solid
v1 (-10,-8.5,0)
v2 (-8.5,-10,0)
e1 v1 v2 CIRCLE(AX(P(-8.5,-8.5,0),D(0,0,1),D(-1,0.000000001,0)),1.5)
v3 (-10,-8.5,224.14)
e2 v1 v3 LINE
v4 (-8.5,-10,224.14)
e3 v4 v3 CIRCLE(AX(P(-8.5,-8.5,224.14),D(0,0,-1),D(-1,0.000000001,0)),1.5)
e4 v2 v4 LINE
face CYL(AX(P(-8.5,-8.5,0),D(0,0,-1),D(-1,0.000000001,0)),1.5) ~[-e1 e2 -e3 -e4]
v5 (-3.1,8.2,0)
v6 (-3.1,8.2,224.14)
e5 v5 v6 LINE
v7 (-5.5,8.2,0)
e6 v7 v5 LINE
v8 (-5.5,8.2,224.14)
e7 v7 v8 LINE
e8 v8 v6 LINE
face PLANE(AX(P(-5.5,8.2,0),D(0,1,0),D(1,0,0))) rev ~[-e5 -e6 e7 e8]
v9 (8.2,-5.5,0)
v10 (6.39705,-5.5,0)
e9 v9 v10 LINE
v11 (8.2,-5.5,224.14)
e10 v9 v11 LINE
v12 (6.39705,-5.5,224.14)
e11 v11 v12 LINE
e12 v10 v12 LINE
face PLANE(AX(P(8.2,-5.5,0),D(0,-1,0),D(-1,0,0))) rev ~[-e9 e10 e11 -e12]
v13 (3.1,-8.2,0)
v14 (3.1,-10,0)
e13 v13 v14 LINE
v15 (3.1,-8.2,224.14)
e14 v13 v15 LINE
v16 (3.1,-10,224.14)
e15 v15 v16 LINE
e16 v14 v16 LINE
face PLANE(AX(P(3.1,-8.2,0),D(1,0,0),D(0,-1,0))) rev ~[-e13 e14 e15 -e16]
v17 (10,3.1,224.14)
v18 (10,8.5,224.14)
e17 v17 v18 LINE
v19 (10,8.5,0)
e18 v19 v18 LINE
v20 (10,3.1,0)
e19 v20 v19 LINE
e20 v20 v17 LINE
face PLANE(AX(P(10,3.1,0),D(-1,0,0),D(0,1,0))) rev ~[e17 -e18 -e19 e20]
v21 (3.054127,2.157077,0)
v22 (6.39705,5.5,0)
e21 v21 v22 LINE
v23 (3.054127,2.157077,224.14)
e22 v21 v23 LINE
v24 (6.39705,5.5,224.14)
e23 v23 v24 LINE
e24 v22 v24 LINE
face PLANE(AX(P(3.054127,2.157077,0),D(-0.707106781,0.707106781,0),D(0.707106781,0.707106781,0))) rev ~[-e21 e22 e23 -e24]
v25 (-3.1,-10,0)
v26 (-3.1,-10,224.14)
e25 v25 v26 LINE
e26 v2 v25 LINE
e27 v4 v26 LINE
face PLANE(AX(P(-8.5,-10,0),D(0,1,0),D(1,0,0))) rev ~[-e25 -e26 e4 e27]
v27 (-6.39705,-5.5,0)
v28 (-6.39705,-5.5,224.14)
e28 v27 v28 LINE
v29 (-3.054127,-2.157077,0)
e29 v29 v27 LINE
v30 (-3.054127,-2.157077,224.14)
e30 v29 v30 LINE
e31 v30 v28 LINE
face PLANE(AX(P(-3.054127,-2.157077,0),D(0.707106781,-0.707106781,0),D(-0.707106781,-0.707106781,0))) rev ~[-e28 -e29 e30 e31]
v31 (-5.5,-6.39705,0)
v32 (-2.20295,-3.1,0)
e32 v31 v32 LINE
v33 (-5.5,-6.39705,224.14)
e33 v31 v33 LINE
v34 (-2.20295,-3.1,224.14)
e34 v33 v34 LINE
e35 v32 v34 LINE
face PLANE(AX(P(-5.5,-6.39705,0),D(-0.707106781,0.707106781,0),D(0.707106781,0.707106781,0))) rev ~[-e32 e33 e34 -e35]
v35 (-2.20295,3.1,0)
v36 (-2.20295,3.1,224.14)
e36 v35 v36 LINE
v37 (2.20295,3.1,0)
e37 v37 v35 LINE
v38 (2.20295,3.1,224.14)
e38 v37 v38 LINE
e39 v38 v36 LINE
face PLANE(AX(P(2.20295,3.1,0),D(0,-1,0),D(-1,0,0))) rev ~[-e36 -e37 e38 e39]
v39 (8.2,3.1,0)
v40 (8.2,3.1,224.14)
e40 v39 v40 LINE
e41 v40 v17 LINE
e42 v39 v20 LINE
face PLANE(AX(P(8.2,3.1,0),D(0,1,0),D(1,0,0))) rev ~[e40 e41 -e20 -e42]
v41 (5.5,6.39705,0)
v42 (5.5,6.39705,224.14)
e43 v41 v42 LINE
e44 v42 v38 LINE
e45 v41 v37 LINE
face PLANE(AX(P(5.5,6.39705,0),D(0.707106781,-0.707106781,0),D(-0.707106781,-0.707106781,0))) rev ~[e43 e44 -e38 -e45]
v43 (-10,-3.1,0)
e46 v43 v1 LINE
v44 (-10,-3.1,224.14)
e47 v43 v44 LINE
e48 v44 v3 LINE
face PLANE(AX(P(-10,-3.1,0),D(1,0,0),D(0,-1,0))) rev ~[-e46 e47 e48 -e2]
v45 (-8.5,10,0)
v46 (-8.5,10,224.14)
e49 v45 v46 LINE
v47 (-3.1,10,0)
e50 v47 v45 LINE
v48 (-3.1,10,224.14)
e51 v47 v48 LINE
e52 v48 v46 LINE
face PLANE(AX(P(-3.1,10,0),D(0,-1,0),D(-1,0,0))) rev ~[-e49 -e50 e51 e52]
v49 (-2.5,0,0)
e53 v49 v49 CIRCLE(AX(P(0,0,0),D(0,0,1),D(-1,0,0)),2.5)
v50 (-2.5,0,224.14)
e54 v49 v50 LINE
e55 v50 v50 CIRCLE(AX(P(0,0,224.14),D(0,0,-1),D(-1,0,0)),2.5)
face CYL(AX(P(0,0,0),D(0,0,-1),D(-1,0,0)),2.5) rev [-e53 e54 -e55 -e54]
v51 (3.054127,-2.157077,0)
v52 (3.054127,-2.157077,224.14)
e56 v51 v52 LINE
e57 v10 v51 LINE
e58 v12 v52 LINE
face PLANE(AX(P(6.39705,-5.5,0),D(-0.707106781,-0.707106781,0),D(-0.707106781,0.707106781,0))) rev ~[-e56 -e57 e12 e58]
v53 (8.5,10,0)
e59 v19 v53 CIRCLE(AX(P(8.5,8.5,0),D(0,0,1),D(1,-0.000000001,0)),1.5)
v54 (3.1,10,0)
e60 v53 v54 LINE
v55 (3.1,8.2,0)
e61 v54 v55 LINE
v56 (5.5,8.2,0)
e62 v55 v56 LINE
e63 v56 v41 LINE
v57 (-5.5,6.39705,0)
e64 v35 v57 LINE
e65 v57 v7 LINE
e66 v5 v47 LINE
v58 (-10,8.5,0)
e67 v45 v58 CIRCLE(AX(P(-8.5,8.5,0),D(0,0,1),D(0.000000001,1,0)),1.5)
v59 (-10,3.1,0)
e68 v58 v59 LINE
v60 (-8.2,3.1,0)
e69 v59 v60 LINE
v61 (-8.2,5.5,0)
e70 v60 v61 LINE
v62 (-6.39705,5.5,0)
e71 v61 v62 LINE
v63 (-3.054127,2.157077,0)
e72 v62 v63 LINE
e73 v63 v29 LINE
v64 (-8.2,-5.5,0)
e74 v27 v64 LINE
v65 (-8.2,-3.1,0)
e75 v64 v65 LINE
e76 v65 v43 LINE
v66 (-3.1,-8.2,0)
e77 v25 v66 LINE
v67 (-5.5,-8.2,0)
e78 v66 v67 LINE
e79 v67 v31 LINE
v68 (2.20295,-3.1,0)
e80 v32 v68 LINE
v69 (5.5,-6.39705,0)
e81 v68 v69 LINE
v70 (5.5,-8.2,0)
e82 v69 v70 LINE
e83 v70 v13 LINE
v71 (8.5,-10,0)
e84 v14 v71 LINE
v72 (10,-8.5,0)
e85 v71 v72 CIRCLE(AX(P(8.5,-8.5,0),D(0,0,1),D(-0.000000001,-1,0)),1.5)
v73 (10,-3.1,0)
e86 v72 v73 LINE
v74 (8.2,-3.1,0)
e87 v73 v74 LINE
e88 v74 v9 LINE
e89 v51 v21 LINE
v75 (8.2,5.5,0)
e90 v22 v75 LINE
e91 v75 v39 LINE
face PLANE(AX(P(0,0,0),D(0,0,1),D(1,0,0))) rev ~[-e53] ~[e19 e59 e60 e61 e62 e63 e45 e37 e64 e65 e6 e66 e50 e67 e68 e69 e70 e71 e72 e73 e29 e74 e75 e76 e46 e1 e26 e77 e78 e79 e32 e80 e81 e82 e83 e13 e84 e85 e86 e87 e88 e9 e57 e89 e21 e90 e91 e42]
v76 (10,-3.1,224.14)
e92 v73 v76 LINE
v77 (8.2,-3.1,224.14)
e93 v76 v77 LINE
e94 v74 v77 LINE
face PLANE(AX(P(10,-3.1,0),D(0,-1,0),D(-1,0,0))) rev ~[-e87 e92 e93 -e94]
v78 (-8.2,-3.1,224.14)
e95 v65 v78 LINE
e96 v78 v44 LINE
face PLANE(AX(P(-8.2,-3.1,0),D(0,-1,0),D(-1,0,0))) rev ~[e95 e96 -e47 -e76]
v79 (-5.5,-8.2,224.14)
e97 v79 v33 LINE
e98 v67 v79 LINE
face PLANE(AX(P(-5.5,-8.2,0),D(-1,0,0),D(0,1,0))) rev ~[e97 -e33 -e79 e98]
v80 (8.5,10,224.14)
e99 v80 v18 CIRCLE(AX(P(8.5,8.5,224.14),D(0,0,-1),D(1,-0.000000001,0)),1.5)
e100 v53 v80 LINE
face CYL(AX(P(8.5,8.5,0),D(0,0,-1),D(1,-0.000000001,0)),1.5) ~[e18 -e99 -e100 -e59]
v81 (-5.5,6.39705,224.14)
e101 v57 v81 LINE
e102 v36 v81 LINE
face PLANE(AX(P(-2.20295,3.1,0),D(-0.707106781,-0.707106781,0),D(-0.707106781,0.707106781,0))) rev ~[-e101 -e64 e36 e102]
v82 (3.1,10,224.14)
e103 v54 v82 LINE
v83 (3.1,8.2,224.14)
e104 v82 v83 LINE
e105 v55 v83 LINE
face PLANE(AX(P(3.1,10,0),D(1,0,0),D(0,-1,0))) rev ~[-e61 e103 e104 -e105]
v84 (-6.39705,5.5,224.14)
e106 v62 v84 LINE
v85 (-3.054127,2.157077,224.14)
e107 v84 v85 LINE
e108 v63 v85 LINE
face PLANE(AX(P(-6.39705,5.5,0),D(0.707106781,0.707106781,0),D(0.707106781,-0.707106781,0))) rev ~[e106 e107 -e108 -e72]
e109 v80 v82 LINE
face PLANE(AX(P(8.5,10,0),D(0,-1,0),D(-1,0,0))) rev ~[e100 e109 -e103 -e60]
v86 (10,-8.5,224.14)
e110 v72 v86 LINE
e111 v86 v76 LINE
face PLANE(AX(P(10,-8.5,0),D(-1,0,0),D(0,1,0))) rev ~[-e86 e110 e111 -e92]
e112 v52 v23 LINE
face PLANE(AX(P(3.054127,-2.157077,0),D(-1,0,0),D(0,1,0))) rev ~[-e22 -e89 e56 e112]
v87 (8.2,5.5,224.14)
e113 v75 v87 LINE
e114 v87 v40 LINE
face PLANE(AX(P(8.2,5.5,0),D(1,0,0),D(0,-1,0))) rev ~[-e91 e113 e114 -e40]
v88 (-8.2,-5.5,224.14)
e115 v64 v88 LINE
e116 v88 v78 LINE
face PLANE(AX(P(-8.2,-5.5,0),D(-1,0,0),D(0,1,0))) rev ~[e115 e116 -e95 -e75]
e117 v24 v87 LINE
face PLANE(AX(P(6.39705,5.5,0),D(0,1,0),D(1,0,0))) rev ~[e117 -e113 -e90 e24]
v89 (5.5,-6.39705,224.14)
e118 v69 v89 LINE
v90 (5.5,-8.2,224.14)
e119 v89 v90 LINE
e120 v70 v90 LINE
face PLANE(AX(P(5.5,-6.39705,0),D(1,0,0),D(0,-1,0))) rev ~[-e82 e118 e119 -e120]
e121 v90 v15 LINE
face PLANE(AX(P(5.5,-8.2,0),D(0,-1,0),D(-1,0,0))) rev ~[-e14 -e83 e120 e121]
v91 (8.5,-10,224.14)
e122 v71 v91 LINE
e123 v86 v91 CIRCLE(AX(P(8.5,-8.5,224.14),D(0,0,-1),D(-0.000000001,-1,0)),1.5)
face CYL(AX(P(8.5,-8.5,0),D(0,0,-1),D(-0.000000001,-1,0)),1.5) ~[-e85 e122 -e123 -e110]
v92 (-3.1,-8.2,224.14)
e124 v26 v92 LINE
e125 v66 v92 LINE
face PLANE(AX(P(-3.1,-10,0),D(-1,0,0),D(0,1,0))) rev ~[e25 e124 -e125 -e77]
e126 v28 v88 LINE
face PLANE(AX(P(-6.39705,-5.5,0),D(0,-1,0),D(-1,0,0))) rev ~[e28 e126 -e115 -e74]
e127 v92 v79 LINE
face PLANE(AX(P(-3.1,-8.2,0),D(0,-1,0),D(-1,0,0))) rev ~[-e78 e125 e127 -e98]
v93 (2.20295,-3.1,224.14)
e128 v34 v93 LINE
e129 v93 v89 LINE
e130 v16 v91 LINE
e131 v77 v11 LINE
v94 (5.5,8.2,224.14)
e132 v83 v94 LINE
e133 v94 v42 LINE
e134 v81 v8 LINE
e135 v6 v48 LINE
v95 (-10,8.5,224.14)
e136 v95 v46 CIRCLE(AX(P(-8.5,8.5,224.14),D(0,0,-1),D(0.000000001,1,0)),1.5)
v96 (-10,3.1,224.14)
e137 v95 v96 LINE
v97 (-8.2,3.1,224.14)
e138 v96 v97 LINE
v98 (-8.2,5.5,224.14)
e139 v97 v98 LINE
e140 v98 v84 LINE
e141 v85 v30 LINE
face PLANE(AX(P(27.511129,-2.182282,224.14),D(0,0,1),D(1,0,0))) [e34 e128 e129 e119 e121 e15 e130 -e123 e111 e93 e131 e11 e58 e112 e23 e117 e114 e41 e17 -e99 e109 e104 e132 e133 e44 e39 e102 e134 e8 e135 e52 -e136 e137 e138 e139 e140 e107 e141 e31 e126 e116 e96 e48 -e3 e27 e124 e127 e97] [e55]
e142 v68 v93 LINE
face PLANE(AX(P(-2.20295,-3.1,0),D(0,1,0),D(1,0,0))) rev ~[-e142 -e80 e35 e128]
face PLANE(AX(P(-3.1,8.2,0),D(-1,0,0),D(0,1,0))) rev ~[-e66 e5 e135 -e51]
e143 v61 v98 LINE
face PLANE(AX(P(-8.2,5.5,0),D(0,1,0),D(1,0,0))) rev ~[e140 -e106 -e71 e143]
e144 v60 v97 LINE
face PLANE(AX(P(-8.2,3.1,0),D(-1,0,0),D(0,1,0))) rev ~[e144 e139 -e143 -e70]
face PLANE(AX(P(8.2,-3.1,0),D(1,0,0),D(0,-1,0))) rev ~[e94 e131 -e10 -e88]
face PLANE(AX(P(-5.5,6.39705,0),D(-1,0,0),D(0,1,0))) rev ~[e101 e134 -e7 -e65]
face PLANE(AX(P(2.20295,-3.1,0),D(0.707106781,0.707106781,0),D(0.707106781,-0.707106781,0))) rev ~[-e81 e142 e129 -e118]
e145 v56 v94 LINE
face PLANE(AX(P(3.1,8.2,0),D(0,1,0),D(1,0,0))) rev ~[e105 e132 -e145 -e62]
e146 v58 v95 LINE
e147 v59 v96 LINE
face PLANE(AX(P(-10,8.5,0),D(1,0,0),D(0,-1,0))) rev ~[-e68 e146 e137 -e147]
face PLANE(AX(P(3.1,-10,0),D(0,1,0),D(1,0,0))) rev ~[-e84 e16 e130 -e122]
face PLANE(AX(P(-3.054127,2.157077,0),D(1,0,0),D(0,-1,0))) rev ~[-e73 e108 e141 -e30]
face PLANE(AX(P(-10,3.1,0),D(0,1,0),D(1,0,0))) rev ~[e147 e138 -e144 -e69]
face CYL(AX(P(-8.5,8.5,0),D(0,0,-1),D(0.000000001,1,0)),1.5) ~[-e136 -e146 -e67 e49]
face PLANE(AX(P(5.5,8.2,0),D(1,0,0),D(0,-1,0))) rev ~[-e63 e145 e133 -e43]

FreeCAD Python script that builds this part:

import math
import FreeCAD as App
import Part
import Sketcher
Q = App.Units.Quantity


def add_polygon(sketch, points):
    """Adds a closed chain of lines whose ends are joined by coincident constraints."""
    first, n = sketch.GeometryCount, len(points)
    for a, b in zip(points, points[1:] + points[:1]):
        sketch.addGeometry(Part.LineSegment(App.Vector(*a, 0), App.Vector(*b, 0)), False)
    for i in range(n):
        sketch.addConstraint(Sketcher.Constraint("Coincident", first + i, 2, first + (i + 1) % n, 1))

doc = App.newDocument("Part")
body = doc.addObject("PartDesign::Body", "Body")

# Sketch on XY plane
sketch1 = body.newObject("Sketcher::SketchObject", "Sketch")
sketch1.AttachmentSupport = (doc.getObject("XY_Plane"), [""])
sketch1.MapMode = "FlatFace"
sketch1.addGeometry([
    Part.LineSegment(App.Vector(-8.2, -3.1, 0), App.Vector(-10, -3.1, 0)),  # 0
    Part.LineSegment(App.Vector(-10, -3.1, 0), App.Vector(-10, -8.5, 0)),  # 1
    Part.ArcOfCircle(Part.Circle(App.Vector(-8.5, -8.5, 0), App.Vector(0, 0, 1), 1.5), math.radians(180), math.radians(270)),  # 2
    Part.LineSegment(App.Vector(-8.5, -10, 0), App.Vector(-3.1, -10, 0)),  # 3
    Part.LineSegment(App.Vector(-3.1, -10, 0), App.Vector(-3.1, -8.2, 0)),  # 4
    Part.LineSegment(App.Vector(-3.1, -8.2, 0), App.Vector(-5.5, -8.2, 0)),  # 5
    Part.LineSegment(App.Vector(-5.5, -8.2, 0), App.Vector(-5.5, -6.39705, 0)),  # 6
    Part.LineSegment(App.Vector(-5.5, -6.39705, 0), App.Vector(-2.20295, -3.1, 0)),  # 7
    Part.LineSegment(App.Vector(-2.20295, -3.1, 0), App.Vector(2.20295, -3.1, 0)),  # 8
    Part.LineSegment(App.Vector(2.20295, -3.1, 0), App.Vector(5.5, -6.39705, 0)),  # 9
    Part.LineSegment(App.Vector(5.5, -6.39705, 0), App.Vector(5.5, -8.2, 0)),  # 10
    Part.LineSegment(App.Vector(5.5, -8.2, 0), App.Vector(3.1, -8.2, 0)),  # 11
    Part.LineSegment(App.Vector(3.1, -8.2, 0), App.Vector(3.1, -10, 0)),  # 12
    Part.LineSegment(App.Vector(3.1, -10, 0), App.Vector(8.5, -10, 0)),  # 13
    Part.ArcOfCircle(Part.Circle(App.Vector(8.5, -8.5, 0), App.Vector(0, 0, 1), 1.5), math.radians(-90), math.radians(0)),  # 14
    Part.LineSegment(App.Vector(10, -8.5, 0), App.Vector(10, -3.1, 0)),  # 15
    Part.LineSegment(App.Vector(10, -3.1, 0), App.Vector(8.2, -3.1, 0)),  # 16
    Part.LineSegment(App.Vector(8.2, -3.1, 0), App.Vector(8.2, -5.5, 0)),  # 17
    Part.LineSegment(App.Vector(8.2, -5.5, 0), App.Vector(6.39705, -5.5, 0)),  # 18
    Part.LineSegment(App.Vector(6.39705, -5.5, 0), App.Vector(3.054127, -2.157077, 0)),  # 19
    Part.LineSegment(App.Vector(3.054127, -2.157077, 0), App.Vector(3.054127, 2.157077, 0)),  # 20
    Part.LineSegment(App.Vector(3.054127, 2.157077, 0), App.Vector(6.39705, 5.5, 0)),  # 21
    Part.LineSegment(App.Vector(6.39705, 5.5, 0), App.Vector(8.2, 5.5, 0)),  # 22
    Part.LineSegment(App.Vector(8.2, 5.5, 0), App.Vector(8.2, 3.1, 0)),  # 23
    Part.LineSegment(App.Vector(8.2, 3.1, 0), App.Vector(10, 3.1, 0)),  # 24
    Part.LineSegment(App.Vector(10, 3.1, 0), App.Vector(10, 8.5, 0)),  # 25
    Part.ArcOfCircle(Part.Circle(App.Vector(8.5, 8.5, 0), App.Vector(0, 0, 1), 1.5), math.radians(0), math.radians(90)),  # 26
    Part.LineSegment(App.Vector(8.5, 10, 0), App.Vector(3.1, 10, 0)),  # 27
    Part.LineSegment(App.Vector(3.1, 10, 0), App.Vector(3.1, 8.2, 0)),  # 28
    Part.LineSegment(App.Vector(3.1, 8.2, 0), App.Vector(5.5, 8.2, 0)),  # 29
    Part.LineSegment(App.Vector(5.5, 8.2, 0), App.Vector(5.5, 6.39705, 0)),  # 30
    Part.LineSegment(App.Vector(5.5, 6.39705, 0), App.Vector(2.20295, 3.1, 0)),  # 31
    Part.LineSegment(App.Vector(2.20295, 3.1, 0), App.Vector(-2.20295, 3.1, 0)),  # 32
    Part.LineSegment(App.Vector(-2.20295, 3.1, 0), App.Vector(-5.5, 6.39705, 0)),  # 33
    Part.LineSegment(App.Vector(-5.5, 6.39705, 0), App.Vector(-5.5, 8.2, 0)),  # 34
    Part.LineSegment(App.Vector(-5.5, 8.2, 0), App.Vector(-3.1, 8.2, 0)),  # 35
    Part.LineSegment(App.Vector(-3.1, 8.2, 0), App.Vector(-3.1, 10, 0)),  # 36
    Part.LineSegment(App.Vector(-3.1, 10, 0), App.Vector(-8.5, 10, 0)),  # 37
    Part.ArcOfCircle(Part.Circle(App.Vector(-8.5, 8.5, 0), App.Vector(0, 0, 1), 1.5), math.radians(90), math.radians(180)),  # 38
    Part.LineSegment(App.Vector(-10, 8.5, 0), App.Vector(-10, 3.1, 0)),  # 39
    Part.LineSegment(App.Vector(-10, 3.1, 0), App.Vector(-8.2, 3.1, 0)),  # 40
    Part.LineSegment(App.Vector(-8.2, 3.1, 0), App.Vector(-8.2, 5.5, 0)),  # 41
    Part.LineSegment(App.Vector(-8.2, 5.5, 0), App.Vector(-6.39705, 5.5, 0)),  # 42
    Part.LineSegment(App.Vector(-6.39705, 5.5, 0), App.Vector(-3.054127, 2.157077, 0)),  # 43
    Part.LineSegment(App.Vector(-3.054127, 2.157077, 0), App.Vector(-3.054127, -2.157077, 0)),  # 44
    Part.LineSegment(App.Vector(-3.054127, -2.157077, 0), App.Vector(-6.39705, -5.5, 0)),  # 45
    Part.LineSegment(App.Vector(-6.39705, -5.5, 0), App.Vector(-8.2, -5.5, 0)),  # 46
    Part.LineSegment(App.Vector(-8.2, -5.5, 0), App.Vector(-8.2, -3.1, 0)),  # 47
    Part.Circle(App.Vector(0, 0, 0), App.Vector(0, 0, 1), 2.5),  # 48
], False)
sketch1.addConstraint([
    Sketcher.Constraint("Coincident", 0, 2, 1, 1),
    Sketcher.Constraint("Tangent", 1, 2, 2, 1),
    Sketcher.Constraint("Tangent", 2, 2, 3, 1),
    Sketcher.Constraint("Coincident", 3, 2, 4, 1),
    Sketcher.Constraint("Coincident", 4, 2, 5, 1),
    Sketcher.Constraint("Coincident", 5, 2, 6, 1),
    Sketcher.Constraint("Coincident", 6, 2, 7, 1),
    Sketcher.Constraint("Coincident", 7, 2, 8, 1),
    Sketcher.Constraint("Coincident", 8, 2, 9, 1),
    Sketcher.Constraint("Coincident", 9, 2, 10, 1),
    Sketcher.Constraint("Coincident", 10, 2, 11, 1),
    Sketcher.Constraint("Coincident", 11, 2, 12, 1),
    Sketcher.Constraint("Coincident", 12, 2, 13, 1),
    Sketcher.Constraint("Tangent", 13, 2, 14, 1),
    Sketcher.Constraint("Tangent", 14, 2, 15, 1),
    Sketcher.Constraint("Coincident", 15, 2, 16, 1),
    Sketcher.Constraint("Coincident", 16, 2, 17, 1),
    Sketcher.Constraint("Coincident", 17, 2, 18, 1),
    Sketcher.Constraint("Coincident", 18, 2, 19, 1),
    Sketcher.Constraint("Coincident", 19, 2, 20, 1),
    Sketcher.Constraint("Coincident", 20, 2, 21, 1),
    Sketcher.Constraint("Coincident", 21, 2, 22, 1),
    Sketcher.Constraint("Coincident", 22, 2, 23, 1),
    Sketcher.Constraint("Coincident", 23, 2, 24, 1),
    Sketcher.Constraint("Coincident", 24, 2, 25, 1),
    Sketcher.Constraint("Tangent", 25, 2, 26, 1),
    Sketcher.Constraint("Tangent", 26, 2, 27, 1),
    Sketcher.Constraint("Coincident", 27, 2, 28, 1),
    Sketcher.Constraint("Coincident", 28, 2, 29, 1),
    Sketcher.Constraint("Coincident", 29, 2, 30, 1),
    Sketcher.Constraint("Coincident", 30, 2, 31, 1),
    Sketcher.Constraint("Coincident", 31, 2, 32, 1),
    Sketcher.Constraint("Coincident", 32, 2, 33, 1),
    Sketcher.Constraint("Coincident", 33, 2, 34, 1),
    Sketcher.Constraint("Coincident", 34, 2, 35, 1),
    Sketcher.Constraint("Coincident", 35, 2, 36, 1),
    Sketcher.Constraint("Coincident", 36, 2, 37, 1),
    Sketcher.Constraint("Tangent", 37, 2, 38, 1),
    Sketcher.Constraint("Tangent", 38, 2, 39, 1),
    Sketcher.Constraint("Coincident", 39, 2, 40, 1),
    Sketcher.Constraint("Coincident", 40, 2, 41, 1),
    Sketcher.Constraint("Coincident", 41, 2, 42, 1),
    Sketcher.Constraint("Coincident", 42, 2, 43, 1),
    Sketcher.Constraint("Coincident", 43, 2, 44, 1),
    Sketcher.Constraint("Coincident", 44, 2, 45, 1),
    Sketcher.Constraint("Coincident", 45, 2, 46, 1),
    Sketcher.Constraint("Coincident", 46, 2, 47, 1),
    Sketcher.Constraint("Coincident", 47, 2, 0, 1),
    Sketcher.Constraint("Horizontal", 0),
    Sketcher.Constraint("Vertical", 1),
    Sketcher.Constraint("Horizontal", 3),
    Sketcher.Constraint("Vertical", 4),
    Sketcher.Constraint("Horizontal", 5),
    Sketcher.Constraint("Vertical", 6),
    Sketcher.Constraint("Horizontal", 8),
    Sketcher.Constraint("Vertical", 10),
    Sketcher.Constraint("Horizontal", 11),
    Sketcher.Constraint("Vertical", 12),
    Sketcher.Constraint("Horizontal", 13),
    Sketcher.Constraint("Vertical", 15),
    Sketcher.Constraint("Horizontal", 16),
    Sketcher.Constraint("Vertical", 17),
    Sketcher.Constraint("Horizontal", 18),
    Sketcher.Constraint("Vertical", 20),
    Sketcher.Constraint("Horizontal", 22),
    Sketcher.Constraint("Vertical", 23),
    Sketcher.Constraint("Horizontal", 24),
    Sketcher.Constraint("Vertical", 25),
    Sketcher.Constraint("Horizontal", 27),
    Sketcher.Constraint("Vertical", 28),
    Sketcher.Constraint("Horizontal", 29),
    Sketcher.Constraint("Vertical", 30),
    Sketcher.Constraint("Horizontal", 32),
    Sketcher.Constraint("Vertical", 34),
    Sketcher.Constraint("Horizontal", 35),
    Sketcher.Constraint("Vertical", 36),
    Sketcher.Constraint("Horizontal", 37),
    Sketcher.Constraint("Vertical", 39),
    Sketcher.Constraint("Horizontal", 40),
    Sketcher.Constraint("Vertical", 41),
    Sketcher.Constraint("Horizontal", 42),
    Sketcher.Constraint("Vertical", 44),
    Sketcher.Constraint("Horizontal", 46),
    Sketcher.Constraint("Vertical", 47),
    Sketcher.Constraint("Coincident", 48, 3, -1, 1),
    Sketcher.Constraint("Equal", 2, 14),
    Sketcher.Constraint("Equal", 14, 26),
    Sketcher.Constraint("Equal", 26, 38),
    Sketcher.Constraint("Symmetric", 2, 3, 26, 3, -1, 1),
    Sketcher.Constraint("Symmetric", 14, 3, 38, 3, -1, 1),
    Sketcher.Constraint("Symmetric", 4, 2, 28, 2, -1, 1),
    Sketcher.Constraint("Symmetric", 6, 2, 30, 2, -1, 1),
    Sketcher.Constraint("Symmetric", 7, 2, 31, 2, -1, 1),
    Sketcher.Constraint("Symmetric", 9, 2, 33, 2, -1, 1),
    Sketcher.Constraint("Symmetric", 11, 2, 35, 2, -1, 1),
    Sketcher.Constraint("Symmetric", 16, 2, 40, 2, -1, 1),
    Sketcher.Constraint("Symmetric", 18, 2, 42, 2, -1, 1),
    Sketcher.Constraint("Symmetric", 19, 2, 43, 2, -1, 1),
    Sketcher.Constraint("Symmetric", 21, 2, 45, 2, -1, 1),
    Sketcher.Constraint("Symmetric", 23, 2, 47, 2, -1, 1),
    Sketcher.Constraint("Symmetric", 2, 3, 14, 3, -2),
    Sketcher.Constraint("Symmetric", 6, 2, 9, 2, -2),
    Sketcher.Constraint("Symmetric", 4, 2, 11, 2, -2),
    Sketcher.Constraint("Symmetric", 23, 2, 40, 2, -2),
    Sketcher.Constraint("Symmetric", 21, 2, 42, 2, -2),
    Sketcher.Constraint("Perpendicular", 7, 9),
    Sketcher.Constraint("Parallel", 9, 19),
    Sketcher.Constraint("Perpendicular", 19, 21),
    Sketcher.Constraint("Perpendicular", 31, 33),
    Sketcher.Constraint("Perpendicular", 43, 45),
    Sketcher.Constraint("Horizontal", 0, 2, 7, 2),
    Sketcher.Constraint("Horizontal", 20, 2, 43, 2),
    Sketcher.Constraint("Equal", 37, 1),
    Sketcher.Constraint("Equal", 40, 4),
    Sketcher.Constraint("Equal", 46, 6),
    Sketcher.Constraint("Equal", 35, 17),
    Sketcher.Constraint("Diameter", 48, Q("5 mm")),
    Sketcher.Constraint("Radius", 2, Q("1.5 mm")),
    Sketcher.Constraint("DistanceX", 0, 2, 0, 1, Q("1.8 mm")),
    Sketcher.Constraint("DistanceX", 3, 1, 3, 2, Q("5.4 mm")),
    Sketcher.Constraint("DistanceX", 5, 2, 5, 1, Q("2.4 mm")),
    Sketcher.Constraint("DistanceX", 0, 2, -1, 1, Q("10 mm")),
    Sketcher.Constraint("DistanceY", 2, 2, -1, 1, Q("10 mm")),
    Sketcher.Constraint("DistanceX", 8, 1, 8, 2, Q("4.4059 mm")),
    Sketcher.Constraint("DistanceY", 20, 1, 20, 2, Q("4.314154 mm")),
])
pad1 = body.newObject("PartDesign::Pad", "Pad")
pad1.Profile = sketch1
pad1.Length = 950

# Sketch on XY plane
sketch2 = body.newObject("Sketcher::SketchObject", "Sketch001")
sketch2.AttachmentSupport = (doc.getObject("XY_Plane"), [""])
sketch2.MapMode = "FlatFace"
sketch2.AttachmentOffset = App.Placement(App.Vector(0, 0, 950), App.Rotation())
add_polygon(sketch2, [(-27.463005, 12.539693), (-27.463005, -16.904257), (82.485263, -16.904257), (82.485263, 12.539693)])  # lines 0-3
sketch2.addConstraint([
    Sketcher.Constraint("Vertical", 0),
    Sketcher.Constraint("Horizontal", 1),
    Sketcher.Constraint("Vertical", 2),
    Sketcher.Constraint("Horizontal", 3),
    Sketcher.Constraint("DistanceX", 1, 1, 1, 2, Q("109.948268 mm")),
    Sketcher.Constraint("DistanceY", 0, 2, 0, 1, Q("29.44395 mm")),
    Sketcher.Constraint("DistanceX", 0, 2, -1, 1, Q("27.463005 mm")),
    Sketcher.Constraint("DistanceY", 0, 2, -1, 1, Q("16.904257 mm")),
])
pocket1 = body.newObject("PartDesign::Pocket", "Pocket")
pocket1.Profile = sketch2
pocket1.Length = 725.86

doc.recompute()
